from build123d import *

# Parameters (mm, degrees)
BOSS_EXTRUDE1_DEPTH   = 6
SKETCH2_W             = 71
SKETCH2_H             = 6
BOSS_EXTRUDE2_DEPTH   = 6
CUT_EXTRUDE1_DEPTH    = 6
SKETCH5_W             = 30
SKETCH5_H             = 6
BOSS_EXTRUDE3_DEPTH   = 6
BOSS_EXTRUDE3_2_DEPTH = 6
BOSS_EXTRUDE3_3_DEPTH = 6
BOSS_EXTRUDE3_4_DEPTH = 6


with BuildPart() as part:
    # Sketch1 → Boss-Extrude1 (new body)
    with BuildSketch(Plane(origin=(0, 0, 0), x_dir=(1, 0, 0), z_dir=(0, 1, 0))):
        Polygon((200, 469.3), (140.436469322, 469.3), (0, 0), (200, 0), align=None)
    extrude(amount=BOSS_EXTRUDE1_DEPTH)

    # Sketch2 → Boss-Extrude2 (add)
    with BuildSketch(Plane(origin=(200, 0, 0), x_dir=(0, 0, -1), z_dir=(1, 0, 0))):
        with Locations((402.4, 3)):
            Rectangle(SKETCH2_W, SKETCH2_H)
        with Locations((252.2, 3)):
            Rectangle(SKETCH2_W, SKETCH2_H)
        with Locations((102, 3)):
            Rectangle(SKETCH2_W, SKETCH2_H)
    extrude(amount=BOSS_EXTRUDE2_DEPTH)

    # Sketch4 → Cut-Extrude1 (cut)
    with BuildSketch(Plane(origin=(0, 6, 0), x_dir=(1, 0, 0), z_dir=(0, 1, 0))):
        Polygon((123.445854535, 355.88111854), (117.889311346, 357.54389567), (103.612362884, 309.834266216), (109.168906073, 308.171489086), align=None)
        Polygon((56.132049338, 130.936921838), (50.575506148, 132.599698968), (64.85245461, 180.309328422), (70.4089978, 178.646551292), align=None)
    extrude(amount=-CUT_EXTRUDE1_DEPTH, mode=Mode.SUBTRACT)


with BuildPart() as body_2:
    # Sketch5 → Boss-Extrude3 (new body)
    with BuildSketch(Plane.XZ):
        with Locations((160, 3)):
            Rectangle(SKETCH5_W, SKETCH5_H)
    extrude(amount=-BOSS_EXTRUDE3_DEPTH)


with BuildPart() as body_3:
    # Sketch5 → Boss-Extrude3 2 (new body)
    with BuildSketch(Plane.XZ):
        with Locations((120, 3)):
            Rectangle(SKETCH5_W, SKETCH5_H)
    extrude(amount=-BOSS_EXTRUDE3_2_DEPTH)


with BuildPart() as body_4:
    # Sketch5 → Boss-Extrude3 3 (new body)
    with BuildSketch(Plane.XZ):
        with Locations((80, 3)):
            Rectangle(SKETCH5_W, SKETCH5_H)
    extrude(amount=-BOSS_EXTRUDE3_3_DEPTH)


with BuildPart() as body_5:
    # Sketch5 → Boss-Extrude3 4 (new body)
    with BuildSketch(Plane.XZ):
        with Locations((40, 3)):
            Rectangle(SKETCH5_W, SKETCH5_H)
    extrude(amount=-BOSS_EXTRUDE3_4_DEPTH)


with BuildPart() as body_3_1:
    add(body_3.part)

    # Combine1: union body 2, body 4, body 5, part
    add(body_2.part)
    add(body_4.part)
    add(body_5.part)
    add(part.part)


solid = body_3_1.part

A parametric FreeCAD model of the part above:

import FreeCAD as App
import Part
import Sketcher
from FreeCAD import Vector

doc = App.newDocument("Part")
body = doc.addObject("PartDesign::Body", "Body")

# Sketch on XZ plane
sketch1 = doc.addObject("Sketcher::SketchObject", "Sketch")
body.addObject(sketch1)
sketch1.AttachmentSupport = (doc.XZ_Plane, [""])
sketch1.MapMode = "FlatFace"
sketch1.addGeometry(Part.LineSegment(Vector(200, -469, 0), Vector(140, -469, 0)), False)
sketch1.addGeometry(Part.LineSegment(Vector(140, -469, 0), Vector(0, 0, 0)), False)
sketch1.addGeometry(Part.LineSegment(Vector(0, 0, 0), Vector(200, 0, 0)), False)
sketch1.addGeometry(Part.LineSegment(Vector(200, 0, 0), Vector(200, -469, 0)), False)
sketch1.addConstraint(Sketcher.Constraint("Coincident", 0, 2, 1, 1))
sketch1.addConstraint(Sketcher.Constraint("Coincident", 1, 2, 2, 1))
sketch1.addConstraint(Sketcher.Constraint("Coincident", 2, 2, 3, 1))
sketch1.addConstraint(Sketcher.Constraint("Coincident", 3, 2, 0, 1))
sketch1.addConstraint(Sketcher.Constraint("Horizontal", 0))
sketch1.addConstraint(Sketcher.Constraint("Horizontal", 2))
sketch1.addConstraint(Sketcher.Constraint("Vertical", 3))
sketch1.addConstraint(Sketcher.Constraint("Coincident", 1, 2, -1, 1))
sketch1.addConstraint(Sketcher.Constraint("DistanceX", 2, 1, 2, 2, 200.0))
sketch1.addConstraint(Sketcher.Constraint("DistanceY", 3, 2, 3, 1, 469.3))
sketch1.addConstraint(Sketcher.Constraint("DistanceX", 0, 2, 0, 1, 59.563531))
pad1 = doc.addObject("PartDesign::Pad", "Pad")
body.addObject(pad1)
pad1.Profile = sketch1
pad1.Length = 6
pad1.Reversed = True

# Sketch on YZ plane
sketch2 = doc.addObject("Sketcher::SketchObject", "Sketch001")
body.addObject(sketch2)
sketch2.AttachmentSupport = (doc.YZ_Plane, [""])
sketch2.MapMode = "FlatFace"
sketch2.AttachmentOffset = App.Placement(Vector(0, 0, 200), App.Rotation())
sketch2.addGeometry(Part.LineSegment(Vector(6, -367, 0), Vector(0, -367, 0)), False)
sketch2.addGeometry(Part.LineSegment(Vector(0, -367, 0), Vector(0, -438, 0)), False)
sketch2.addGeometry(Part.LineSegment(Vector(0, -438, 0), Vector(6, -438, 0)), False)
sketch2.addGeometry(Part.LineSegment(Vector(6, -438, 0), Vector(6, -367, 0)), False)
sketch2.addGeometry(Part.LineSegment(Vector(6, -217, 0), Vector(0, -217, 0)), False)
sketch2.addGeometry(Part.LineSegment(Vector(0, -217, 0), Vector(0, -288, 0)), False)
sketch2.addGeometry(Part.LineSegment(Vector(0, -288, 0), Vector(6, -288, 0)), False)
sketch2.addGeometry(Part.LineSegment(Vector(6, -288, 0), Vector(6, -217, 0)), False)
sketch2.addGeometry(Part.LineSegment(Vector(6, -66, 0), Vector(0, -66, 0)), False)
sketch2.addGeometry(Part.LineSegment(Vector(0, -66, 0), Vector(0, -138, 0)), False)
sketch2.addGeometry(Part.LineSegment(Vector(0, -138, 0), Vector(6, -138, 0)), False)
sketch2.addGeometry(Part.LineSegment(Vector(6, -138, 0), Vector(6, -66, 0)), False)
sketch2.addConstraint(Sketcher.Constraint("Coincident", 0, 2, 1, 1))
sketch2.addConstraint(Sketcher.Constraint("Coincident", 1, 2, 2, 1))
sketch2.addConstraint(Sketcher.Constraint("Coincident", 2, 2, 3, 1))
sketch2.addConstraint(Sketcher.Constraint("Coincident", 3, 2, 0, 1))
sketch2.addConstraint(Sketcher.Constraint("Coincident", 4, 2, 5, 1))
sketch2.addConstraint(Sketcher.Constraint("Coincident", 5, 2, 6, 1))
sketch2.addConstraint(Sketcher.Constraint("Coincident", 6, 2, 7, 1))
sketch2.addConstraint(Sketcher.Constraint("Coincident", 7, 2, 4, 1))
sketch2.addConstraint(Sketcher.Constraint("Coincident", 8, 2, 9, 1))
sketch2.addConstraint(Sketcher.Constraint("Coincident", 9, 2, 10, 1))
sketch2.addConstraint(Sketcher.Constraint("Coincident", 10, 2, 11, 1))
sketch2.addConstraint(Sketcher.Constraint("Coincident", 11, 2, 8, 1))
sketch2.addConstraint(Sketcher.Constraint("Horizontal", 0))
sketch2.addConstraint(Sketcher.Constraint("Vertical", 1))
sketch2.addConstraint(Sketcher.Constraint("Horizontal", 2))
sketch2.addConstraint(Sketcher.Constraint("Vertical", 3))
sketch2.addConstraint(Sketcher.Constraint("Horizontal", 4))
sketch2.addConstraint(Sketcher.Constraint("Vertical", 5))
sketch2.addConstraint(Sketcher.Constraint("Horizontal", 6))
sketch2.addConstraint(Sketcher.Constraint("Vertical", 7))
sketch2.addConstraint(Sketcher.Constraint("Horizontal", 8))
sketch2.addConstraint(Sketcher.Constraint("Vertical", 9))
sketch2.addConstraint(Sketcher.Constraint("Horizontal", 10))
sketch2.addConstraint(Sketcher.Constraint("Vertical", 11))
sketch2.addConstraint(Sketcher.Constraint("PointOnObject", 0, 2, -2))
sketch2.addConstraint(Sketcher.Constraint("PointOnObject", 4, 2, -2))
sketch2.addConstraint(Sketcher.Constraint("PointOnObject", 8, 2, -2))
sketch2.addConstraint(Sketcher.Constraint("Vertical", 3, 2, 6, 2))
sketch2.addConstraint(Sketcher.Constraint("Vertical", 7, 2, 10, 2))
sketch2.addConstraint(Sketcher.Constraint("Equal", 3, 5))
sketch2.addConstraint(Sketcher.Constraint("Equal", 7, 9))
sketch2.addConstraint(Sketcher.Constraint("DistanceX", 0, 2, 0, 1, 6.0))
sketch2.addConstraint(Sketcher.Constraint("DistanceY", 1, 2, 1, 1, 71.0))
sketch2.addConstraint(Sketcher.Constraint("DistanceY", 0, 2, -1, 1, 366.9))
sketch2.addConstraint(Sketcher.Constraint("DistanceY", 4, 2, -1, 1, 216.7))
sketch2.addConstraint(Sketcher.Constraint("DistanceY", 8, 2, -1, 1, 66.5))
pad2 = doc.addObject("PartDesign::Pad", "Pad001")
body.addObject(pad2)
pad2.Profile = sketch2
pad2.Length = 6

# Sketch on XZ plane
sketch3 = doc.addObject("Sketcher::SketchObject", "Sketch002")
body.addObject(sketch3)
sketch3.AttachmentSupport = (doc.XZ_Plane, [""])
sketch3.MapMode = "FlatFace"
sketch3.AttachmentOffset = App.Placement(Vector(0, 0, -6), App.Rotation())
sketch3.addGeometry(Part.LineSegment(Vector(123, -356, 0), Vector(118, -358, 0)), False)
sketch3.addGeometry(Part.LineSegment(Vector(118, -358, 0), Vector(104, -310, 0)), False)
sketch3.addGeometry(Part.LineSegment(Vector(104, -310, 0), Vector(109, -308, 0)), False)
sketch3.addGeometry(Part.LineSegment(Vector(109, -308, 0), Vector(123, -356, 0)), False)
sketch3.addGeometry(Part.LineSegment(Vector(51, -133, 0), Vector(56, -131, 0)), False)
sketch3.addGeometry(Part.LineSegment(Vector(56, -131, 0), Vector(70, -179, 0)), False)
sketch3.addGeometry(Part.LineSegment(Vector(70, -179, 0), Vector(65, -180, 0)), False)
sketch3.addGeometry(Part.LineSegment(Vector(65, -180, 0), Vector(51, -133, 0)), False)
sketch3.addConstraint(Sketcher.Constraint("Coincident", 0, 2, 1, 1))
sketch3.addConstraint(Sketcher.Constraint("Coincident", 1, 2, 2, 1))
sketch3.addConstraint(Sketcher.Constraint("Coincident", 2, 2, 3, 1))
sketch3.addConstraint(Sketcher.Constraint("Coincident", 3, 2, 0, 1))
sketch3.addConstraint(Sketcher.Constraint("Coincident", 4, 2, 5, 1))
sketch3.addConstraint(Sketcher.Constraint("Coincident", 5, 2, 6, 1))
sketch3.addConstraint(Sketcher.Constraint("Coincident", 6, 2, 7, 1))
sketch3.addConstraint(Sketcher.Constraint("Coincident", 7, 2, 4, 1))
sketch3.addConstraint(Sketcher.Constraint("Perpendicular", 0, 1))
sketch3.addConstraint(Sketcher.Constraint("Perpendicular", 1, 2))
sketch3.addConstraint(Sketcher.Constraint("Perpendicular", 2, 3))
sketch3.addConstraint(Sketcher.Constraint("Perpendicular", 3, 4))
sketch3.addConstraint(Sketcher.Constraint("Perpendicular", 4, 5))
sketch3.addConstraint(Sketcher.Constraint("Perpendicular", 5, 6))
sketch3.addConstraint(Sketcher.Constraint("Perpendicular", 6, 7))
sketch3.addConstraint(Sketcher.Constraint("Equal", 2, 4))
sketch3.addConstraint(Sketcher.Constraint("Equal", 3, 5))
sketch3.addConstraint(Sketcher.Constraint("Distance", 0, 5.8))
sketch3.addConstraint(Sketcher.Constraint("Distance", 1, 49.8))
sketch3.addConstraint(Sketcher.Constraint("DistanceY", 7, 2, -1, 1, 132.599699))
sketch3.addConstraint(Sketcher.Constraint("DistanceX", 7, 2, 2, 2, 58.5934))
sketch3.addConstraint(Sketcher.Constraint("DistanceX", -1, 1, 0, 2, 117.889311))
sketch3.addConstraint(Sketcher.Constraint("DistanceY", 2, 2, -1, 1, 308.171489))
sketch3.addConstraint(Sketcher.Constraint("DistanceY", 3, 2, -1, 1, 355.881119))
pocket1 = doc.addObject("PartDesign::Pocket", "Pocket")
body.addObject(pocket1)
pocket1.Profile = sketch3
pocket1.Length = 6
pocket1.Reversed = True
body2 = doc.addObject("PartDesign::Body", "Body001")

# Sketch on XZ plane
sketch4 = doc.addObject("Sketcher::SketchObject", "Sketch003")
body2.addObject(sketch4)
sketch4.AttachmentSupport = (doc.getObject("XZ_Plane001"), [""])
sketch4.MapMode = "FlatFace"
sketch4.addGeometry(Part.LineSegment(Vector(145, 6, 0), Vector(145, 0, 0)), False)
sketch4.addGeometry(Part.LineSegment(Vector(145, 0, 0), Vector(175, 0, 0)), False)
sketch4.addGeometry(Part.LineSegment(Vector(175, 0, 0), Vector(175, 6, 0)), False)
sketch4.addGeometry(Part.LineSegment(Vector(175, 6, 0), Vector(145, 6, 0)), False)
sketch4.addConstraint(Sketcher.Constraint("Coincident", 0, 2, 1, 1))
sketch4.addConstraint(Sketcher.Constraint("Coincident", 1, 2, 2, 1))
sketch4.addConstraint(Sketcher.Constraint("Coincident", 2, 2, 3, 1))
sketch4.addConstraint(Sketcher.Constraint("Coincident", 3, 2, 0, 1))
sketch4.addConstraint(Sketcher.Constraint("Vertical", 0))
sketch4.addConstraint(Sketcher.Constraint("Horizontal", 1))
sketch4.addConstraint(Sketcher.Constraint("Vertical", 2))
sketch4.addConstraint(Sketcher.Constraint("Horizontal", 3))
sketch4.addConstraint(Sketcher.Constraint("PointOnObject", 0, 2, -1))
sketch4.addConstraint(Sketcher.Constraint("DistanceX", 1, 1, 1, 2, 30.0))
sketch4.addConstraint(Sketcher.Constraint("DistanceY", 0, 2, 0, 1, 6.0))
sketch4.addConstraint(Sketcher.Constraint("DistanceX", -1, 1, 0, 2, 145.0))
pad3 = doc.addObject("PartDesign::Pad", "Pad002")
body2.addObject(pad3)
pad3.Profile = sketch4
pad3.Length = 6
pad3.Reversed = True
body3 = doc.addObject("PartDesign::Body", "Body002")

# Sketch on XZ plane
sketch5 = doc.addObject("Sketcher::SketchObject", "Sketch004")
body3.addObject(sketch5)
sketch5.AttachmentSupport = (doc.getObject("XZ_Plane002"), [""])
sketch5.MapMode = "FlatFace"
sketch5.addGeometry(Part.LineSegment(Vector(105, 6, 0), Vector(105, 0, 0)), False)
sketch5.addGeometry(Part.LineSegment(Vector(105, 0, 0), Vector(135, 0, 0)), False)
sketch5.addGeometry(Part.LineSegment(Vector(135, 0, 0), Vector(135, 6, 0)), False)
sketch5.addGeometry(Part.LineSegment(Vector(135, 6, 0), Vector(105, 6, 0)), False)
sketch5.addConstraint(Sketcher.Constraint("Coincident", 0, 2, 1, 1))
sketch5.addConstraint(Sketcher.Constraint("Coincident", 1, 2, 2, 1))
sketch5.addConstraint(Sketcher.Constraint("Coincident", 2, 2, 3, 1))
sketch5.addConstraint(Sketcher.Constraint("Coincident", 3, 2, 0, 1))
sketch5.addConstraint(Sketcher.Constraint("Vertical", 0))
sketch5.addConstraint(Sketcher.Constraint("Horizontal", 1))
sketch5.addConstraint(Sketcher.Constraint("Vertical", 2))
sketch5.addConstraint(Sketcher.Constraint("Horizontal", 3))
sketch5.addConstraint(Sketcher.Constraint("PointOnObject", 0, 2, -1))
sketch5.addConstraint(Sketcher.Constraint("DistanceX", 1, 1, 1, 2, 30.0))
sketch5.addConstraint(Sketcher.Constraint("DistanceY", 0, 2, 0, 1, 6.0))
sketch5.addConstraint(Sketcher.Constraint("DistanceX", -1, 1, 0, 2, 105.0))
pad4 = doc.addObject("PartDesign::Pad", "Pad003")
body3.addObject(pad4)
pad4.Profile = sketch5
pad4.Length = 6
pad4.Reversed = True
body4 = doc.addObject("PartDesign::Body", "Body003")

# Sketch on XZ plane
sketch6 = doc.addObject("Sketcher::SketchObject", "Sketch005")
body4.addObject(sketch6)
sketch6.AttachmentSupport = (doc.getObject("XZ_Plane003"), [""])
sketch6.MapMode = "FlatFace"
sketch6.addGeometry(Part.LineSegment(Vector(65, 6, 0), Vector(65, 0, 0)), False)
sketch6.addGeometry(Part.LineSegment(Vector(65, 0, 0), Vector(95, 0, 0)), False)
sketch6.addGeometry(Part.LineSegment(Vector(95, 0, 0), Vector(95, 6, 0)), False)
sketch6.addGeometry(Part.LineSegment(Vector(95, 6, 0), Vector(65, 6, 0)), False)
sketch6.addConstraint(Sketcher.Constraint("Coincident", 0, 2, 1, 1))
sketch6.addConstraint(Sketcher.Constraint("Coincident", 1, 2, 2, 1))
sketch6.addConstraint(Sketcher.Constraint("Coincident", 2, 2, 3, 1))
sketch6.addConstraint(Sketcher.Constraint("Coincident", 3, 2, 0, 1))
sketch6.addConstraint(Sketcher.Constraint("Vertical", 0))
sketch6.addConstraint(Sketcher.Constraint("Horizontal", 1))
sketch6.addConstraint(Sketcher.Constraint("Vertical", 2))
sketch6.addConstraint(Sketcher.Constraint("Horizontal", 3))
sketch6.addConstraint(Sketcher.Constraint("PointOnObject", 0, 2, -1))
sketch6.addConstraint(Sketcher.Constraint("DistanceX", 1, 1, 1, 2, 30.0))
sketch6.addConstraint(Sketcher.Constraint("DistanceY", 0, 2, 0, 1, 6.0))
sketch6.addConstraint(Sketcher.Constraint("DistanceX", -1, 1, 0, 2, 65.0))
pad5 = doc.addObject("PartDesign::Pad", "Pad004")
body4.addObject(pad5)
pad5.Profile = sketch6
pad5.Length = 6
pad5.Reversed = True
body5 = doc.addObject("PartDesign::Body", "Body004")

# Sketch on XZ plane
sketch7 = doc.addObject("Sketcher::SketchObject", "Sketch006")
body5.addObject(sketch7)
sketch7.AttachmentSupport = (doc.getObject("XZ_Plane004"), [""])
sketch7.MapMode = "FlatFace"
sketch7.addGeometry(Part.LineSegment(Vector(25, 6, 0), Vector(25, 0, 0)), False)
sketch7.addGeometry(Part.LineSegment(Vector(25, 0, 0), Vector(55, 0, 0)), False)
sketch7.addGeometry(Part.LineSegment(Vector(55, 0, 0), Vector(55, 6, 0)), False)
sketch7.addGeometry(Part.LineSegment(Vector(55, 6, 0), Vector(25, 6, 0)), False)
sketch7.addConstraint(Sketcher.Constraint("Coincident", 0, 2, 1, 1))
sketch7.addConstraint(Sketcher.Constraint("Coincident", 1, 2, 2, 1))
sketch7.addConstraint(Sketcher.Constraint("Coincident", 2, 2, 3, 1))
sketch7.addConstraint(Sketcher.Constraint("Coincident", 3, 2, 0, 1))
sketch7.addConstraint(Sketcher.Constraint("Vertical", 0))
sketch7.addConstraint(Sketcher.Constraint("Horizontal", 1))
sketch7.addConstraint(Sketcher.Constraint("Vertical", 2))
sketch7.addConstraint(Sketcher.Constraint("Horizontal", 3))
sketch7.addConstraint(Sketcher.Constraint("PointOnObject", 0, 2, -1))
sketch7.addConstraint(Sketcher.Constraint("DistanceX", 1, 1, 1, 2, 30.0))
sketch7.addConstraint(Sketcher.Constraint("DistanceY", 0, 2, 0, 1, 6.0))
sketch7.addConstraint(Sketcher.Constraint("DistanceX", -1, 1, 0, 2, 25.0))
pad6 = doc.addObject("PartDesign::Pad", "Pad005")
body5.addObject(pad6)
pad6.Profile = sketch7
pad6.Length = 6
pad6.Reversed = True
body3.AllowCompound = True
doc.recompute()

boolean = doc.addObject("PartDesign::Boolean", "Boolean")
body3.addObject(boolean)
boolean.Type = "Fuse"
boolean.addObjects([body2])
doc.recompute()

boolean2 = doc.addObject("PartDesign::Boolean", "Boolean001")
body3.addObject(boolean2)
boolean2.Type = "Fuse"
boolean2.addObjects([body4])
doc.recompute()

boolean3 = doc.addObject("PartDesign::Boolean", "Boolean002")
body3.addObject(boolean3)
boolean3.Type = "Fuse"
boolean3.addObjects([body5])
doc.recompute()

boolean4 = doc.addObject("PartDesign::Boolean", "Boolean003")
body3.addObject(boolean4)
boolean4.Type = "Fuse"
boolean4.addObjects([body])

doc.recompute()
